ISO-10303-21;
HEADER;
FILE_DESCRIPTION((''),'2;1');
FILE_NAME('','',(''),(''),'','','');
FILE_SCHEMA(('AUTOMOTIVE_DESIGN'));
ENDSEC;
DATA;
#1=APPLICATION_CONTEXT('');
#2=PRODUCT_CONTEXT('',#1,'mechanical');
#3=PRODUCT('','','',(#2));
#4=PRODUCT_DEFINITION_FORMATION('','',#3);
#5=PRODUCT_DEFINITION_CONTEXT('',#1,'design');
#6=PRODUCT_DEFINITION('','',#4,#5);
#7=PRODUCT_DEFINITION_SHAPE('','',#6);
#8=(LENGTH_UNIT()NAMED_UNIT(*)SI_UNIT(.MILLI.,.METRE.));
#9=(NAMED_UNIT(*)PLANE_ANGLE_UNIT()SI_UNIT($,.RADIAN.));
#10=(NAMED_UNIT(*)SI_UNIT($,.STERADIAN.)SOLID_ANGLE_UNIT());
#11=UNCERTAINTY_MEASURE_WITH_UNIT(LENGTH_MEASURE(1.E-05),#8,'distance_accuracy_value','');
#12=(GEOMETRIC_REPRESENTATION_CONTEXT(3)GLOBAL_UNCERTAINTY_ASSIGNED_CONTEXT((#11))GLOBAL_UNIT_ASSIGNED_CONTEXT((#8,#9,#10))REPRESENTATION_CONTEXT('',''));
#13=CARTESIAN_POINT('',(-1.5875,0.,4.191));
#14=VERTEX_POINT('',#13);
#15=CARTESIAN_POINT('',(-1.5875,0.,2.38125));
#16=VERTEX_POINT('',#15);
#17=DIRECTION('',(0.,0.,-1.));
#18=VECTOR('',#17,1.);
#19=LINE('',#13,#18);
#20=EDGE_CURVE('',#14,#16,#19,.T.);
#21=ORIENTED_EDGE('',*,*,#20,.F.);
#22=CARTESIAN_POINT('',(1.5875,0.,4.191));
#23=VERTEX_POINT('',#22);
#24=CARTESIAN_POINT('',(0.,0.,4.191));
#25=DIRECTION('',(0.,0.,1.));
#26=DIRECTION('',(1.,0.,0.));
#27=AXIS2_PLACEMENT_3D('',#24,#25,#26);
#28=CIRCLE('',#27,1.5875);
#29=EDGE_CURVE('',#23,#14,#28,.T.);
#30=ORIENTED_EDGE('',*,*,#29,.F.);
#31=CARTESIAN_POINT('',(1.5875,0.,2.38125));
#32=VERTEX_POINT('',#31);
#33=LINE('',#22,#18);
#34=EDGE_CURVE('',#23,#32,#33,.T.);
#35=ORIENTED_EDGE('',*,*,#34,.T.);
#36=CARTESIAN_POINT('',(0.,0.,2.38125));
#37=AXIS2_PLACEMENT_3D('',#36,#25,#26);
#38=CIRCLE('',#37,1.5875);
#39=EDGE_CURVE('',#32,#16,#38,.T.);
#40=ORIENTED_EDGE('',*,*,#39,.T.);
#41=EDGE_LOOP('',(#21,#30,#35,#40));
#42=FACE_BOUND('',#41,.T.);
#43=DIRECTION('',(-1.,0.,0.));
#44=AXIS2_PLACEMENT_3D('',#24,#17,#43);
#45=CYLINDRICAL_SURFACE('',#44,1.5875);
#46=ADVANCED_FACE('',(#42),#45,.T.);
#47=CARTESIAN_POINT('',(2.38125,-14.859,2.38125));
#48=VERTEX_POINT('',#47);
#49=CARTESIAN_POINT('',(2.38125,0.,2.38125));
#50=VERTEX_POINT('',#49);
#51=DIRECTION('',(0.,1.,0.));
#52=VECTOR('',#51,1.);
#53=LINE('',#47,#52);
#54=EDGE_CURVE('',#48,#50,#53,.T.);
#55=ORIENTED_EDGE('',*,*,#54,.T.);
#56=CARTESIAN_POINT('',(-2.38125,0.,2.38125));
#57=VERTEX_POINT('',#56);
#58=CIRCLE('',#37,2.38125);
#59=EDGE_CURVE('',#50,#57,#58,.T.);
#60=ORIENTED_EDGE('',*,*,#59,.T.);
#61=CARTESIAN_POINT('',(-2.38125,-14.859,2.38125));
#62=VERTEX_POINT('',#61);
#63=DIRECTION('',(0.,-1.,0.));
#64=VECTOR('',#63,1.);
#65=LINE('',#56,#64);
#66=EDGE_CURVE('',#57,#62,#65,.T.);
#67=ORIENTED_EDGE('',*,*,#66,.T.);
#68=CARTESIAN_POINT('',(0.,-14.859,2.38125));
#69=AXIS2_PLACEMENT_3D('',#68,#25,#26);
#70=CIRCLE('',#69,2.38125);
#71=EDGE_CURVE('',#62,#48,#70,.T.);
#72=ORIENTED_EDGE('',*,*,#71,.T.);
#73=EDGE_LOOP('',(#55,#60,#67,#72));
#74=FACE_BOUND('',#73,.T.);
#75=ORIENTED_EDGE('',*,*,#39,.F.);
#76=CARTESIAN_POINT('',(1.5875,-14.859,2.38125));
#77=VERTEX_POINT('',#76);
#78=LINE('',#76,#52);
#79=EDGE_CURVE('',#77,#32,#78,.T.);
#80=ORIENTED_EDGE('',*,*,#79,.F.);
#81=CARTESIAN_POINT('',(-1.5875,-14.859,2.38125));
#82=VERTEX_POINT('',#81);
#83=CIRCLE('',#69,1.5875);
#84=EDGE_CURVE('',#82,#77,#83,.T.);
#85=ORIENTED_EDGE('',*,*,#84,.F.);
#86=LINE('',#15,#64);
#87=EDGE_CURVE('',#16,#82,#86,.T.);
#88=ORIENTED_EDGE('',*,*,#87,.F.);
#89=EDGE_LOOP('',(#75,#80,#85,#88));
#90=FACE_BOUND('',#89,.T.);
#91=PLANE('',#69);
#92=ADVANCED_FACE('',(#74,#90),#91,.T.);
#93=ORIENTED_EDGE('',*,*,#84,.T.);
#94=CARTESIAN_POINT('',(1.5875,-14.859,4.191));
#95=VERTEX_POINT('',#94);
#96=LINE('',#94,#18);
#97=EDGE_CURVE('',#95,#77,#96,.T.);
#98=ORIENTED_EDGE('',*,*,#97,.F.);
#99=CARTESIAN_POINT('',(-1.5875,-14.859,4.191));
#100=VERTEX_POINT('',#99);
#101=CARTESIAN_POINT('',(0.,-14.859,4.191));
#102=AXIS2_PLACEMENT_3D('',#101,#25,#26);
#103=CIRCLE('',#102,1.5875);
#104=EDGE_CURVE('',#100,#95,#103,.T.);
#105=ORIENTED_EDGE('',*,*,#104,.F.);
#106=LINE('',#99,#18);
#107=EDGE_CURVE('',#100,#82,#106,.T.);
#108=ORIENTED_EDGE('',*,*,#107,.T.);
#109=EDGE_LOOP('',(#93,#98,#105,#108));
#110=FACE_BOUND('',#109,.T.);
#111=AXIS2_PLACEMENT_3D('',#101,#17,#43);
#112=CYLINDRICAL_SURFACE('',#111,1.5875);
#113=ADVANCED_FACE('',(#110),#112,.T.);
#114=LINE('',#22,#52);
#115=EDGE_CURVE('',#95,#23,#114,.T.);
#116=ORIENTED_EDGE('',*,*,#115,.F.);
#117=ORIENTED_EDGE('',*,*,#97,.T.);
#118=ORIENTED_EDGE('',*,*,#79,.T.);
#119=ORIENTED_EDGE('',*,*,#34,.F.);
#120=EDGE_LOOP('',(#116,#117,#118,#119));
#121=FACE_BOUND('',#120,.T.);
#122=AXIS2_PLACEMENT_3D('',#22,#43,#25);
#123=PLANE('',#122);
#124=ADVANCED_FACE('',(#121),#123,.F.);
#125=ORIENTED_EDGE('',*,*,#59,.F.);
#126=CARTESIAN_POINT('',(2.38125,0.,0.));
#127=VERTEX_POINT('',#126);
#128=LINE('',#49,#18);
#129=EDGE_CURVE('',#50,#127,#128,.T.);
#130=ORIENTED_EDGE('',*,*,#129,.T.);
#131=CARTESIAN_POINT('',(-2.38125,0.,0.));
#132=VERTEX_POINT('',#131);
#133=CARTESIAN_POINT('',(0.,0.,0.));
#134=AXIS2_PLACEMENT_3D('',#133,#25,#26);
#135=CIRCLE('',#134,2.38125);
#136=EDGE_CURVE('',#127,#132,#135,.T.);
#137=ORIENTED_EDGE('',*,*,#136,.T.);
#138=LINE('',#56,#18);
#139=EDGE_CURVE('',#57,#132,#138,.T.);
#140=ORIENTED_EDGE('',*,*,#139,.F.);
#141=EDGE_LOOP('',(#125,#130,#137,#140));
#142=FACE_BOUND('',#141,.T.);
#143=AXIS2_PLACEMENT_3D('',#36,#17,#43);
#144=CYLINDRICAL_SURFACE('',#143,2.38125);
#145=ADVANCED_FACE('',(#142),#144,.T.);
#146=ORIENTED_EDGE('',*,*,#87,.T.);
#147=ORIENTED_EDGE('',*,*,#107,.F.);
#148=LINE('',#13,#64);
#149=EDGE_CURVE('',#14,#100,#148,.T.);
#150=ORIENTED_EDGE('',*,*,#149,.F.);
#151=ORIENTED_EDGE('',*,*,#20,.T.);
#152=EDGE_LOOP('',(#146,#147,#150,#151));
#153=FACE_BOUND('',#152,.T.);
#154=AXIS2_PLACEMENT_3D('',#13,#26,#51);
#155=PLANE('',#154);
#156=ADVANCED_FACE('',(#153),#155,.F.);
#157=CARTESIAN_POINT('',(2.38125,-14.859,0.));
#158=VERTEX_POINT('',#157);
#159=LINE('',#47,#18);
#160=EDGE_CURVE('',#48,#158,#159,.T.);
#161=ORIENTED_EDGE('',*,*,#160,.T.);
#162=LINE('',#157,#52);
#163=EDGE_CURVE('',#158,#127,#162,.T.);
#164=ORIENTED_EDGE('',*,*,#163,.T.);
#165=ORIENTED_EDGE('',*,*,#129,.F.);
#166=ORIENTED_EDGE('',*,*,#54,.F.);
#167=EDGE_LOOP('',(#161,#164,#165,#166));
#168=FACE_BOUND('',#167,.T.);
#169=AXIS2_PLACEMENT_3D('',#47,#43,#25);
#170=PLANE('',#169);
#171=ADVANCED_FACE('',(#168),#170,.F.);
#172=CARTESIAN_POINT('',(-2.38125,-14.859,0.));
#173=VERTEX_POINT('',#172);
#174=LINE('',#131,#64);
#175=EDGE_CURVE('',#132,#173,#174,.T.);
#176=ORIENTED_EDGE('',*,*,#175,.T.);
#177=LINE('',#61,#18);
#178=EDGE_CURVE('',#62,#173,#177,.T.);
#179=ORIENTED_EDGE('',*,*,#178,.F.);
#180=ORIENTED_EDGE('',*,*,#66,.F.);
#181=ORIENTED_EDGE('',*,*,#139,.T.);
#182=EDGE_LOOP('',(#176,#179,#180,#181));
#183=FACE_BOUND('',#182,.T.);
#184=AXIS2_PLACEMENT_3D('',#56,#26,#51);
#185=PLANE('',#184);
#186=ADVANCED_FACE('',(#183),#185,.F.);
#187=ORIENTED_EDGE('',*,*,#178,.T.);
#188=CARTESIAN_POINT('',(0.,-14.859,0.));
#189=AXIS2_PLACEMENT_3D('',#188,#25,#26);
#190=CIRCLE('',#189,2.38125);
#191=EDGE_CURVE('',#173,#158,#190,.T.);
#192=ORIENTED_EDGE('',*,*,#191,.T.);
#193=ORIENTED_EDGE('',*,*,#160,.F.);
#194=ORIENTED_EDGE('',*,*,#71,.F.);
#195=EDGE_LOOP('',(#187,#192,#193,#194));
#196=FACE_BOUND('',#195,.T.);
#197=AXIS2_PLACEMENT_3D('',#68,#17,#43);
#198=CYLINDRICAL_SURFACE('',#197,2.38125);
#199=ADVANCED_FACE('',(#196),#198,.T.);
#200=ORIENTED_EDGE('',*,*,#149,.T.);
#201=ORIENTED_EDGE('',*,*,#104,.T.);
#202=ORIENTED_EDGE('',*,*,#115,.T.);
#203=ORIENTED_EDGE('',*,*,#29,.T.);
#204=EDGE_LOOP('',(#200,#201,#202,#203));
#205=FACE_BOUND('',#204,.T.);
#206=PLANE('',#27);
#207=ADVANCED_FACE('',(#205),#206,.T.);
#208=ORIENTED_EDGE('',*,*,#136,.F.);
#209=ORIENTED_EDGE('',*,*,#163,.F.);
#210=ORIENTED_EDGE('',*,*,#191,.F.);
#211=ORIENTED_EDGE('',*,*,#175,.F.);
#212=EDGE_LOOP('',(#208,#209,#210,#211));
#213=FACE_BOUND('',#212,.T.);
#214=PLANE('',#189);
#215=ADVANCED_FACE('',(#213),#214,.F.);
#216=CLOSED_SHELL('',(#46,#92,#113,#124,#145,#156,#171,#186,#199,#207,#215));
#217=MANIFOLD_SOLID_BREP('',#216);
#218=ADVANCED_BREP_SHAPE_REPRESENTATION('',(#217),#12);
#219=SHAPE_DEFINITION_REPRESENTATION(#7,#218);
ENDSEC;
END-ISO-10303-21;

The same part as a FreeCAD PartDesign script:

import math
import FreeCAD as App
import Part
import Sketcher
from FreeCAD import Vector
Q = App.Units.Quantity

doc = App.newDocument("Part")
params = doc.addObject("Spreadsheet::Sheet", "Params")
for row, (alias, value) in enumerate([
    ("sketch1_radius", "0.09375 in"),
    ("sketch1_radius2", "0.0625 in"),
    ("sketch1_height", "0.585 in"),
    ("pad1_length", "0.09375 in"),
    ("sketch2_radius", "0.0625 in"),
    ("sketch2_height", "0.585 in"),
    ("pad2_length", "0.165 in"),
], start=1):
    params.set(f"A{row}", alias)
    params.set(f"B{row}", "=" + value)
    params.setAlias(f"B{row}", alias)

body = doc.addObject("PartDesign::Body", "Body")

sketch1 = body.newObject("Sketcher::SketchObject", "Sketch")
sketch1.AttachmentSupport = (doc.getObject("XY_Plane"), [""])
sketch1.MapMode = "FlatFace"
sketch1.addGeometry([
    Part.LineSegment(Vector(2.4, -14.9, 0), Vector(2.4, 0, 0)),
    Part.ArcOfCircle(Part.Circle(Vector(0, 0, 0), Vector(0, 0, 1), 2.4), math.radians(0), math.radians(180)),
    Part.LineSegment(Vector(-2.4, 0, 0), Vector(-2.4, -14.9, 0)),
    Part.ArcOfCircle(Part.Circle(Vector(0, -14.9, 0), Vector(0, 0, 1), 2.4), math.radians(180), math.radians(360)),
    Part.LineSegment(Vector(1.6, 0, 0), Vector(1.6, -14.9, 0)),
    Part.ArcOfCircle(Part.Circle(Vector(0, -14.9, 0), Vector(0, 0, 1), 1.6), math.radians(180), math.radians(360)),
    Part.LineSegment(Vector(-1.6, -14.9, 0), Vector(-1.6, 0, 0)),
    Part.ArcOfCircle(Part.Circle(Vector(0, 0, 0), Vector(0, 0, 1), 1.6), math.radians(0), math.radians(180)),
], False)
sketch1.addConstraint([
    Sketcher.Constraint("Tangent", 0, 2, 1, 1),
    Sketcher.Constraint("Tangent", 1, 2, 2, 1),
    Sketcher.Constraint("Tangent", 2, 2, 3, 1),
    Sketcher.Constraint("Tangent", 3, 2, 0, 1),
    Sketcher.Constraint("Tangent", 4, 2, 5, 2),
    Sketcher.Constraint("Tangent", 5, 1, 6, 1),
    Sketcher.Constraint("Tangent", 6, 2, 7, 2),
    Sketcher.Constraint("Tangent", 7, 1, 4, 1),
    Sketcher.Constraint("Vertical", 0),
    Sketcher.Constraint("Vertical", 2),
    Sketcher.Constraint("Vertical", 4),
    Sketcher.Constraint("Vertical", 6),
    Sketcher.Constraint("Coincident", 1, 3, -1, 1),
    Sketcher.Constraint("Coincident", 7, 3, -1, 1),
    Sketcher.Constraint("Horizontal", 5, 3, 2, 2),
    Sketcher.Constraint("Radius", 1, Q("0.09375 in")),
    Sketcher.Constraint("Radius", 5, Q("0.0625 in")),
    Sketcher.Constraint("DistanceY", 0, 1, 0, 2, Q("0.585 in")),
])
sketch1.setExpression("Constraints[15]", "Params.sketch1_radius")
sketch1.setExpression("Constraints[16]", "Params.sketch1_radius2")
sketch1.setExpression("Constraints[17]", "Params.sketch1_height")
pad1 = body.newObject("PartDesign::Pad", "Pad")
pad1.Profile = sketch1
pad1.setExpression("Length", "Params.pad1_length")

sketch2 = body.newObject("Sketcher::SketchObject", "Sketch001")
sketch2.AttachmentSupport = (doc.getObject("XY_Plane"), [""])
sketch2.MapMode = "FlatFace"
sketch2.addGeometry([
    Part.LineSegment(Vector(1.6, -14.9, 0), Vector(1.6, 0, 0)),
    Part.ArcOfCircle(Part.Circle(Vector(0, 0, 0), Vector(0, 0, 1), 1.6), math.radians(0), math.radians(180)),
    Part.LineSegment(Vector(-1.6, 0, 0), Vector(-1.6, -14.9, 0)),
    Part.ArcOfCircle(Part.Circle(Vector(0, -14.9, 0), Vector(0, 0, 1), 1.6), math.radians(180), math.radians(360)),
], False)
sketch2.addConstraint([
    Sketcher.Constraint("Tangent", 0, 2, 1, 1),
    Sketcher.Constraint("Tangent", 1, 2, 2, 1),
    Sketcher.Constraint("Tangent", 2, 2, 3, 1),
    Sketcher.Constraint("Tangent", 3, 2, 0, 1),
    Sketcher.Constraint("Vertical", 0),
    Sketcher.Constraint("Vertical", 2),
    Sketcher.Constraint("Coincident", 1, 3, -1, 1),
    Sketcher.Constraint("Radius", 1, Q("0.0625 in")),
    Sketcher.Constraint("DistanceY", 0, 1, 0, 2, Q("0.585 in")),
])
sketch2.setExpression("Constraints[7]", "Params.sketch2_radius")
sketch2.setExpression("Constraints[8]", "Params.sketch2_height")
pad2 = body.newObject("PartDesign::Pad", "Pad001")
pad2.Profile = sketch2
pad2.setExpression("Length", "Params.pad2_length")

doc.recompute()
